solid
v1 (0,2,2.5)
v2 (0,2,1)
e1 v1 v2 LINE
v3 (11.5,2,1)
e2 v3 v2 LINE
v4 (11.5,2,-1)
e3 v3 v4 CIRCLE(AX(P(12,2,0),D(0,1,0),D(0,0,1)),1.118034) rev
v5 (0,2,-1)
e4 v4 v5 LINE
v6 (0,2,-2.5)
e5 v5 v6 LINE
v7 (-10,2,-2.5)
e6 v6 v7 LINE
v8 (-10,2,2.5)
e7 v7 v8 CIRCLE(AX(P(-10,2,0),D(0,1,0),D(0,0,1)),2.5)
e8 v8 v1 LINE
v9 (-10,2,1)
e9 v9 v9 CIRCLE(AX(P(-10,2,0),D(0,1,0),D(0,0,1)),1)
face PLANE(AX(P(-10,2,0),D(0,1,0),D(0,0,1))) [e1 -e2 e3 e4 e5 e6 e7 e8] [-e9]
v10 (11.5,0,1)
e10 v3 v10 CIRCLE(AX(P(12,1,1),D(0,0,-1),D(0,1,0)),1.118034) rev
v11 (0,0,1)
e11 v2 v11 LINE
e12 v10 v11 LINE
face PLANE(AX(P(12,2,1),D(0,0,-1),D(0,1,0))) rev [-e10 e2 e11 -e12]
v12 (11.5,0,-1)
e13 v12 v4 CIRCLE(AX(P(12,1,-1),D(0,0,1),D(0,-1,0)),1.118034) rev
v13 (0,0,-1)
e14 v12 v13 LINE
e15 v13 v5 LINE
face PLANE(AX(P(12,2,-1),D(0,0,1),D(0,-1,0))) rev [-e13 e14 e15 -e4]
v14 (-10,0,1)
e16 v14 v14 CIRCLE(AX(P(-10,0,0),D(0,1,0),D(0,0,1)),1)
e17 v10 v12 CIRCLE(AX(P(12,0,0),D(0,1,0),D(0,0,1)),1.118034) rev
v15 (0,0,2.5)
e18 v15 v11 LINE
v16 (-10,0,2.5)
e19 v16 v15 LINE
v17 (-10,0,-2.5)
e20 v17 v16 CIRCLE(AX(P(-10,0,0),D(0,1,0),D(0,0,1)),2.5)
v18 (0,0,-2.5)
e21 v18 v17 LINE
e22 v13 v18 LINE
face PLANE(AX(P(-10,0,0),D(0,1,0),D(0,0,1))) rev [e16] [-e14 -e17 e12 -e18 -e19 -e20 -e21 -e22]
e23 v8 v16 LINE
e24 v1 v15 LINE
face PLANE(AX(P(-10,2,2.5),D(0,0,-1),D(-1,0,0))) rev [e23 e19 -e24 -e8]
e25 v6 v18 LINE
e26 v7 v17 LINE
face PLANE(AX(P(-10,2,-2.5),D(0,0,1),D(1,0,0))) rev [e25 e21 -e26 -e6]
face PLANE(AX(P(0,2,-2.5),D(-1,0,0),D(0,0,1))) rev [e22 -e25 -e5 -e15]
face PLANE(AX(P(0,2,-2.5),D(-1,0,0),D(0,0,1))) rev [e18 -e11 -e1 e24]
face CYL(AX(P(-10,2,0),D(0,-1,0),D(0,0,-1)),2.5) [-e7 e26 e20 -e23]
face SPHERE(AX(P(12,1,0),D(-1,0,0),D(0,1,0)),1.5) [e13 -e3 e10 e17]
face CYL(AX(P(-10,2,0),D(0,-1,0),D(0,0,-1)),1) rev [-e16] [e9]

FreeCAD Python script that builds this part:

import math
import FreeCAD as App
import Part
import Sketcher
from FreeCAD import Vector
Q = App.Units.Quantity


def add_polygon(sketch, points):
    """Adds a closed chain of lines whose ends are joined by coincident constraints."""
    first, n = sketch.GeometryCount, len(points)
    for a, b in zip(points, points[1:] + points[:1]):
        sketch.addGeometry(Part.LineSegment(App.Vector(*a, 0), App.Vector(*b, 0)), False)
    for i in range(n):
        sketch.addConstraint(Sketcher.Constraint("Coincident", first + i, 2, first + (i + 1) % n, 1))

doc = App.newDocument("Part")
body = doc.addObject("PartDesign::Body", "Body")

# Sketch on XZ plane
sketch1 = body.newObject("Sketcher::SketchObject", "Sketch")
sketch1.AttachmentSupport = (doc.getObject("XZ_Plane"), [""])
sketch1.MapMode = "FlatFace"
sketch1.addGeometry(Part.LineSegment(Vector(0, -2.5, 0), Vector(-10, -2.5, 0)), False)
sketch1.addGeometry(Part.ArcOfCircle(Part.Circle(Vector(-10, 0, 0), Vector(0, 0, 1), 2.5), math.radians(90), math.radians(270)), False)
sketch1.addGeometry(Part.LineSegment(Vector(-10, 2.5, 0), Vector(0, 2.5, 0)), False)
sketch1.addGeometry(Part.LineSegment(Vector(0, 2.5, 0), Vector(0, -2.5, 0)), False)
sketch1.addGeometry(Part.Circle(Vector(-10, 0, 0), Vector(0, 0, 1), 1), False)
sketch1.addConstraint(Sketcher.Constraint("Tangent", 0, 2, 1, 2))
sketch1.addConstraint(Sketcher.Constraint("Tangent", 1, 1, 2, 1))
sketch1.addConstraint(Sketcher.Constraint("Coincident", 2, 2, 3, 1))
sketch1.addConstraint(Sketcher.Constraint("Coincident", 3, 2, 0, 1))
sketch1.addConstraint(Sketcher.Constraint("Horizontal", 0))
sketch1.addConstraint(Sketcher.Constraint("Horizontal", 2))
sketch1.addConstraint(Sketcher.Constraint("Vertical", 3))
sketch1.addConstraint(Sketcher.Constraint("Coincident", 4, 3, 1, 3))
sketch1.addConstraint(Sketcher.Constraint("Symmetric", 2, 2, 3, 2, -1, 1))
sketch1.addConstraint(Sketcher.Constraint("Diameter", 4, 2.0))
sketch1.addConstraint(Sketcher.Constraint("Radius", 1, 2.5))
sketch1.addConstraint(Sketcher.Constraint("DistanceX", 0, 2, 0, 1, 10.0))
pad1 = body.newObject("PartDesign::Pad", "Pad")
pad1.Profile = sketch1
pad1.Length = 2
pad1.Reversed = True

# Sketch on YZ plane
sketch2 = body.newObject("Sketcher::SketchObject", "Sketch001")
sketch2.AttachmentSupport = (doc.getObject("YZ_Plane"), [""])
sketch2.MapMode = "FlatFace"
add_polygon(sketch2, [(2, 1), (0, 1), (0, -1), (2, -1)])  # lines 0-3
sketch2.addConstraint(Sketcher.Constraint("Horizontal", 0))
sketch2.addConstraint(Sketcher.Constraint("Vertical", 1))
sketch2.addConstraint(Sketcher.Constraint("Horizontal", 2))
sketch2.addConstraint(Sketcher.Constraint("Vertical", 3))
sketch2.addConstraint(Sketcher.Constraint("Symmetric", 0, 2, 1, 2, -1, 1))
sketch2.addConstraint(Sketcher.Constraint("Equal", 2, 1))
sketch2.addConstraint(Sketcher.Constraint("DistanceX", 0, 2, 0, 1, 2.0))
pad2 = body.newObject("PartDesign::Pad", "Pad001")
pad2.Profile = sketch2
pad2.Length = 12

# Sketch on XY plane
sketch3 = body.newObject("Sketcher::SketchObject", "Sketch002")
sketch3.AttachmentSupport = (doc.getObject("XY_Plane"), [""])
sketch3.MapMode = "FlatFace"
sketch3.addGeometry(Part.LineSegment(Vector(10.6, 1.6, 0), Vector(12, 1, 0)), False)
sketch3.addGeometry(Part.LineSegment(Vector(12, 1, 0), Vector(13.5, 1, 0)), False)
sketch3.addGeometry(Part.ArcOfCircle(Part.Circle(Vector(12, 1, 0), Vector(0, 0, 1), 1.5), math.radians(0), math.radians(157)), False)
sketch3.addGeometry(Part.LineSegment(Vector(10.6, 1, 0), Vector(13.5, 1, 0)), True)  # axis
sketch3.addConstraint(Sketcher.Constraint("Coincident", 0, 2, 1, 1))
sketch3.addConstraint(Sketcher.Constraint("Coincident", 1, 2, 2, 1))
sketch3.addConstraint(Sketcher.Constraint("Coincident", 2, 2, 0, 1))
sketch3.addConstraint(Sketcher.Constraint("Horizontal", 1))
sketch3.addConstraint(Sketcher.Constraint("Horizontal", 3))
sketch3.addConstraint(Sketcher.Constraint("Coincident", 0, 2, 2, 3))
sketch3.addConstraint(Sketcher.Constraint("Coincident", 3, 2, 1, 2))
sketch3.addConstraint(Sketcher.Constraint("Vertical", 2, 2, 3, 1))
sketch3.addConstraint(Sketcher.Constraint("Radius", 2, 1.5))
sketch3.addConstraint(Sketcher.Constraint("DistanceX", -1, 1, 2, 3, 12.0))
sketch3.addConstraint(Sketcher.Constraint("DistanceY", -1, 1, 2, 3, 1.0))
sketch3.addConstraint(Sketcher.Constraint("Angle", 0, Q("-22.5 deg")))
revolution = body.newObject("PartDesign::Revolution", "Revolution")
revolution.Profile = sketch3
revolution.ReferenceAxis = (sketch3, ["Axis0"])
revolution.Angle = 360

doc.recompute()
